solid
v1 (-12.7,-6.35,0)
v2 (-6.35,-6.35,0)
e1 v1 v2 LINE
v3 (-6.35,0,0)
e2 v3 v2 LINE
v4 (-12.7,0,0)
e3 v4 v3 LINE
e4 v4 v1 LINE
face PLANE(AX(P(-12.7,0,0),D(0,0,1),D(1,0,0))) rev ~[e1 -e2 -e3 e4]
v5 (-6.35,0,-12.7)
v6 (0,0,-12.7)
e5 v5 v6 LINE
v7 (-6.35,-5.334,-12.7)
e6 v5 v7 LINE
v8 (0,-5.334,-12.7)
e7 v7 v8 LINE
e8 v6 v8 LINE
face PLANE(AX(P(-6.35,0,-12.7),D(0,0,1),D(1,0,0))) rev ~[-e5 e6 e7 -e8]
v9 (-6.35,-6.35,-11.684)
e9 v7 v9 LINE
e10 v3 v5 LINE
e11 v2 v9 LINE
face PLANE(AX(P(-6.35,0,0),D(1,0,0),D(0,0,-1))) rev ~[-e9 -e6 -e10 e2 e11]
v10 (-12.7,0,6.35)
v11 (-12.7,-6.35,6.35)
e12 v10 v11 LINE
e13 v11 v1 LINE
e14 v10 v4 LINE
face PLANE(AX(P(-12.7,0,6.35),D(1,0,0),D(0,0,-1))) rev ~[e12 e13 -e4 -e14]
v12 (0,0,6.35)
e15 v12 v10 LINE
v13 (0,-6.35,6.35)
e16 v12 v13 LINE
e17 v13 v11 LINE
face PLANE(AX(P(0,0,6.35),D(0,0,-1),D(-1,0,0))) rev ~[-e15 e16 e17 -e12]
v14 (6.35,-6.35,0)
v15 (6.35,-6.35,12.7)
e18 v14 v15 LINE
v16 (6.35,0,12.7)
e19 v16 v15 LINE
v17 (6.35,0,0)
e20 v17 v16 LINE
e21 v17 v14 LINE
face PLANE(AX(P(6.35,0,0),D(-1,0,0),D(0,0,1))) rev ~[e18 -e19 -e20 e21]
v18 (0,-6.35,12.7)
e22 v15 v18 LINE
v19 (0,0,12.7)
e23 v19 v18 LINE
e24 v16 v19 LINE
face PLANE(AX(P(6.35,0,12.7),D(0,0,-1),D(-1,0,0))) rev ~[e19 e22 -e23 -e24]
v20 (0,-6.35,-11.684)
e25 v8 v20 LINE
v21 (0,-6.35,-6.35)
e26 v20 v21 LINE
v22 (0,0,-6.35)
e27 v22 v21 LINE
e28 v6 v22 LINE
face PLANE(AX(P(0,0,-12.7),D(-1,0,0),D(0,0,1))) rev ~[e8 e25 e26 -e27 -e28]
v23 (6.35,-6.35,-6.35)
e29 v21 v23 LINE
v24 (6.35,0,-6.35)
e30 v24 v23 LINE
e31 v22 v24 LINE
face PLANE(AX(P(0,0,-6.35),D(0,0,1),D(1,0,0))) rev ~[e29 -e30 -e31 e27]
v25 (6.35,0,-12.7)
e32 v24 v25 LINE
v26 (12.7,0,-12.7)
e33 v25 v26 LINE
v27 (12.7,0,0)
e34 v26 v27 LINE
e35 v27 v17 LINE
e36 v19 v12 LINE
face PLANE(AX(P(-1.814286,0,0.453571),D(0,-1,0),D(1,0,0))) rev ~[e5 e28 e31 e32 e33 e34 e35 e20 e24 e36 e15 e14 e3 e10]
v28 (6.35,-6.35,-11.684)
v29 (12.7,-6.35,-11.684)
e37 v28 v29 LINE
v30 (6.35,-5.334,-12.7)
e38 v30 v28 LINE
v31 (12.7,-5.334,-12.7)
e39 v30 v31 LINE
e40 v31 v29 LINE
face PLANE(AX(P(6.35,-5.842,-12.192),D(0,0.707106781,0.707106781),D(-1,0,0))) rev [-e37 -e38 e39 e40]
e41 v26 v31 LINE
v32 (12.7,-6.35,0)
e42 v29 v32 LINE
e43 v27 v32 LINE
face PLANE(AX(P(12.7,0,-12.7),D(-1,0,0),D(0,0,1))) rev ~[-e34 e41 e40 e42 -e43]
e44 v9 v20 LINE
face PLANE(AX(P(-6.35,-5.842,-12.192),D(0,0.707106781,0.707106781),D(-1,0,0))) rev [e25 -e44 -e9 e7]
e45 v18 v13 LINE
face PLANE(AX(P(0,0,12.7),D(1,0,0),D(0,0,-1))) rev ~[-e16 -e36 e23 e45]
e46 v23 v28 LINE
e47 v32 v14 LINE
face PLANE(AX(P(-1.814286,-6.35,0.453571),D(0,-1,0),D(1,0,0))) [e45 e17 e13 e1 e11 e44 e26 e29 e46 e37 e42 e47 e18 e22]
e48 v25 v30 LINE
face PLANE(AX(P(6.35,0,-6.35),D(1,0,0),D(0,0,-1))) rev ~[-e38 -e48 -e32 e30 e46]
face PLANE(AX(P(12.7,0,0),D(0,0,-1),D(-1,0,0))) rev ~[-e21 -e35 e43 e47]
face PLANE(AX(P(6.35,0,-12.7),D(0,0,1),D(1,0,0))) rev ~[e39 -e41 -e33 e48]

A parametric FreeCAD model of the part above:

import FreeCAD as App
import Part
import Sketcher
Q = App.Units.Quantity


def edges_at(feature, points):
    """Names of the edges that pass closest to the given points."""
    edges = feature.Shape.Edges
    near = lambda p: min(range(len(edges)), key=lambda i: edges[i].distToShape(Part.Vertex(*p))[0])
    return sorted({f"Edge{near(p) + 1}" for p in points})

doc = App.newDocument("Part")
body = doc.addObject("PartDesign::Body", "Body")

# Sketch on XZ plane
sketch1 = body.newObject("Sketcher::SketchObject", "Sketch")
sketch1.AttachmentSupport = (doc.getObject("XZ_Plane"), [""])
sketch1.MapMode = "FlatFace"
sketch1.addGeometry(Part.LineSegment(App.Vector(6, 13, 0), App.Vector(0, 13, 0)), False)
sketch1.addGeometry(Part.LineSegment(App.Vector(0, 13, 0), App.Vector(0, 6, 0)), False)
sketch1.addGeometry(Part.LineSegment(App.Vector(0, 6, 0), App.Vector(-13, 6, 0)), False)
sketch1.addGeometry(Part.LineSegment(App.Vector(-13, 6, 0), App.Vector(-13, 0, 0)), False)
sketch1.addGeometry(Part.LineSegment(App.Vector(-13, 0, 0), App.Vector(-6, 0, 0)), False)
sketch1.addGeometry(Part.LineSegment(App.Vector(-6, 0, 0), App.Vector(-6, -13, 0)), False)
sketch1.addGeometry(Part.LineSegment(App.Vector(-6, -13, 0), App.Vector(0, -13, 0)), False)
sketch1.addGeometry(Part.LineSegment(App.Vector(0, -13, 0), App.Vector(0, -6, 0)), False)
sketch1.addGeometry(Part.LineSegment(App.Vector(0, -6, 0), App.Vector(6, -6, 0)), False)
sketch1.addGeometry(Part.LineSegment(App.Vector(6, -6, 0), App.Vector(6, -13, 0)), False)
sketch1.addGeometry(Part.LineSegment(App.Vector(6, -13, 0), App.Vector(13, -13, 0)), False)
sketch1.addGeometry(Part.LineSegment(App.Vector(13, -13, 0), App.Vector(13, 0, 0)), False)
sketch1.addGeometry(Part.LineSegment(App.Vector(13, 0, 0), App.Vector(6, 0, 0)), False)
sketch1.addGeometry(Part.LineSegment(App.Vector(6, 0, 0), App.Vector(6, 13, 0)), False)
sketch1.addConstraint(Sketcher.Constraint("Coincident", 0, 2, 1, 1))
sketch1.addConstraint(Sketcher.Constraint("Coincident", 1, 2, 2, 1))
sketch1.addConstraint(Sketcher.Constraint("Coincident", 2, 2, 3, 1))
sketch1.addConstraint(Sketcher.Constraint("Coincident", 3, 2, 4, 1))
sketch1.addConstraint(Sketcher.Constraint("Coincident", 4, 2, 5, 1))
sketch1.addConstraint(Sketcher.Constraint("Coincident", 5, 2, 6, 1))
sketch1.addConstraint(Sketcher.Constraint("Coincident", 6, 2, 7, 1))
sketch1.addConstraint(Sketcher.Constraint("Coincident", 7, 2, 8, 1))
sketch1.addConstraint(Sketcher.Constraint("Coincident", 8, 2, 9, 1))
sketch1.addConstraint(Sketcher.Constraint("Coincident", 9, 2, 10, 1))
sketch1.addConstraint(Sketcher.Constraint("Coincident", 10, 2, 11, 1))
sketch1.addConstraint(Sketcher.Constraint("Coincident", 11, 2, 12, 1))
sketch1.addConstraint(Sketcher.Constraint("Coincident", 12, 2, 13, 1))
sketch1.addConstraint(Sketcher.Constraint("Coincident", 13, 2, 0, 1))
sketch1.addConstraint(Sketcher.Constraint("Horizontal", 0))
sketch1.addConstraint(Sketcher.Constraint("Vertical", 1))
sketch1.addConstraint(Sketcher.Constraint("Horizontal", 2))
sketch1.addConstraint(Sketcher.Constraint("Vertical", 3))
sketch1.addConstraint(Sketcher.Constraint("Horizontal", 4))
sketch1.addConstraint(Sketcher.Constraint("Vertical", 5))
sketch1.addConstraint(Sketcher.Constraint("Horizontal", 6))
sketch1.addConstraint(Sketcher.Constraint("Vertical", 7))
sketch1.addConstraint(Sketcher.Constraint("Horizontal", 8))
sketch1.addConstraint(Sketcher.Constraint("Vertical", 9))
sketch1.addConstraint(Sketcher.Constraint("Horizontal", 10))
sketch1.addConstraint(Sketcher.Constraint("Vertical", 11))
sketch1.addConstraint(Sketcher.Constraint("Horizontal", 12))
sketch1.addConstraint(Sketcher.Constraint("Vertical", 13))
sketch1.addConstraint(Sketcher.Constraint("Symmetric", 0, 2, 6, 2, -1, 1))
sketch1.addConstraint(Sketcher.Constraint("Symmetric", 3, 2, 11, 2, -1, 1))
sketch1.addConstraint(Sketcher.Constraint("Symmetric", 5, 2, 9, 2, -2))
sketch1.addConstraint(Sketcher.Constraint("Symmetric", 4, 2, 12, 2, -2))
sketch1.addConstraint(Sketcher.Constraint("Symmetric", 1, 2, 7, 2, -1))
sketch1.addConstraint(Sketcher.Constraint("Equal", 0, 4))
sketch1.addConstraint(Sketcher.Constraint("Equal", 12, 1))
sketch1.addConstraint(Sketcher.Constraint("Equal", 1, 3))
sketch1.addConstraint(Sketcher.Constraint("DistanceX", 2, 2, 2, 1, Q("0.5 in")))
pad1 = body.newObject("PartDesign::Pad", "Pad")
pad1.Profile = sketch1
pad1.Length = Q("0.25 in")
doc.recompute()

chamfer = body.newObject("PartDesign::Chamfer", "Chamfer")
chamfer.Base = (pad1, edges_at(pad1, [(-3.175, -6.35, -12.7), (9.525, -6.35, -12.7)]))
chamfer.Size = Q("0.04 in")

doc.recompute()
